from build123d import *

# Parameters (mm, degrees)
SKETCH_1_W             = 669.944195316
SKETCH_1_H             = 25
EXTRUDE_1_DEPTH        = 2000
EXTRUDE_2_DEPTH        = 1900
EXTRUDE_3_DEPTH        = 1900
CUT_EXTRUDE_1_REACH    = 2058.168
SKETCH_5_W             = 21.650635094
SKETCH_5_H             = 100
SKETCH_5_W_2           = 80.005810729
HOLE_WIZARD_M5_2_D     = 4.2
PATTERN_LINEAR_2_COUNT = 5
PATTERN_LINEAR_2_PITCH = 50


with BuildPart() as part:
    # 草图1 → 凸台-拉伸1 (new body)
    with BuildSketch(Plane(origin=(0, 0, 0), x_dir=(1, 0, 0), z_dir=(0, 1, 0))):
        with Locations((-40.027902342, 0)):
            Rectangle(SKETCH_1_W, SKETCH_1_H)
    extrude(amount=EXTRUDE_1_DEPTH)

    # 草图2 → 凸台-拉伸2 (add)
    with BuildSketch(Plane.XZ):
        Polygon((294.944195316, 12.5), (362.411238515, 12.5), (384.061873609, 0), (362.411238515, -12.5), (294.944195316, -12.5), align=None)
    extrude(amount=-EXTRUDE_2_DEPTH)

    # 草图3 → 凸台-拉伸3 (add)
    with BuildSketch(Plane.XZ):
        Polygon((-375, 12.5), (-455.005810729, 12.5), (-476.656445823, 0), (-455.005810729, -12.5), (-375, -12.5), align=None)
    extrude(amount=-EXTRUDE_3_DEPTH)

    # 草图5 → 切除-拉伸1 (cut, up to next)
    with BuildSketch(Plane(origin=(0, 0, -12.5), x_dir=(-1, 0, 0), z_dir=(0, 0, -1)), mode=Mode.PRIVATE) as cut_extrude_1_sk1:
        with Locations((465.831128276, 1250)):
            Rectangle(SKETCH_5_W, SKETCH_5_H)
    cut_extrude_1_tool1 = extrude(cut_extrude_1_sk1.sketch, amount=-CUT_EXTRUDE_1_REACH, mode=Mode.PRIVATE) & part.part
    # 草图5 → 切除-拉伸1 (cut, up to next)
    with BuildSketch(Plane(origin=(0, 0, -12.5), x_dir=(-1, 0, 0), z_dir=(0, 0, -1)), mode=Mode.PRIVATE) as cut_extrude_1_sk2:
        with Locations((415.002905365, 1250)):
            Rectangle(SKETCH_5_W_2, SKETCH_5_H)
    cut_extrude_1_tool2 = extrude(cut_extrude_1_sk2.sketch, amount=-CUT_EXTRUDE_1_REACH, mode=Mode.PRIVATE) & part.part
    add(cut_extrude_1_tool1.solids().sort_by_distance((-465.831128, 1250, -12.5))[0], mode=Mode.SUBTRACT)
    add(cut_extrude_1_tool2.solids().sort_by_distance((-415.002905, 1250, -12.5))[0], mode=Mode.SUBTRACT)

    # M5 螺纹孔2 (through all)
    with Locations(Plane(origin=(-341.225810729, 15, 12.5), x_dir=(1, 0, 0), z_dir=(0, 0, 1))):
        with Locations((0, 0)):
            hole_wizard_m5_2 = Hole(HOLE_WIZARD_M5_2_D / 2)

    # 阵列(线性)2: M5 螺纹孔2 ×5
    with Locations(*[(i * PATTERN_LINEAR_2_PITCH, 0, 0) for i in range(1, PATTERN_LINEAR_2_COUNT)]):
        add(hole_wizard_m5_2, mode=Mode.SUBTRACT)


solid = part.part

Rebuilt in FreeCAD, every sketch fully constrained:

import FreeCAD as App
import Part
import Sketcher

V = App.Vector
Q = App.Units.Quantity


def add_polygon(sketch, points):
    """Adds a closed chain of lines whose ends are joined by coincident constraints."""
    first, n = sketch.GeometryCount, len(points)
    for a, b in zip(points, points[1:] + points[:1]):
        sketch.addGeometry(Part.LineSegment(App.Vector(*a, 0), App.Vector(*b, 0)), False)
    for i in range(n):
        sketch.addConstraint(Sketcher.Constraint("Coincident", first + i, 2, first + (i + 1) % n, 1))

doc = App.newDocument("Part")
body = doc.addObject("PartDesign::Body", "Body")

# Sketch on XZ plane
sketch1 = body.newObject("Sketcher::SketchObject", "Sketch")
sketch1.AttachmentSupport = (doc.getObject("XZ_Plane"), [""])
sketch1.MapMode = "FlatFace"
add_polygon(sketch1, [(-375, -12.5), (-375, 12.5), (294.944195, 12.5), (294.944195, -12.5)])  # lines 0-3
sketch1.addConstraint([
    Sketcher.Constraint("Vertical", 0),
    Sketcher.Constraint("Horizontal", 1),
    Sketcher.Constraint("Vertical", 2),
    Sketcher.Constraint("Horizontal", 3),
    Sketcher.Constraint("DistanceY", 0, 1, 0, 2, 25.0),
    Sketcher.Constraint("DistanceX", 0, 2, -1, 1, 375.0),
    Sketcher.Constraint("DistanceY", -1, 1, 0, 2, 12.5),
    Sketcher.Constraint("DistanceX", 1, 1, 1, 2, 669.944195),
])
pad1 = body.newObject("PartDesign::Pad", "Pad")
pad1.Profile = sketch1
pad1.Length = 2000
pad1.Reversed = True

# Sketch on XZ plane
sketch2 = body.newObject("Sketcher::SketchObject", "Sketch001")
sketch2.AttachmentSupport = (doc.getObject("XZ_Plane"), [""])
sketch2.MapMode = "FlatFace"
add_polygon(sketch2, [(362.411239, 12.5), (294.944195, 12.5), (294.944195, -12.5), (362.411239, -12.5), (384.061874, 0)])  # lines 0-4
sketch2.addConstraint([
    Sketcher.Constraint("Horizontal", 0),
    Sketcher.Constraint("Vertical", 1),
    Sketcher.Constraint("Horizontal", 2),
    Sketcher.Constraint("Symmetric", 2, 2, 4, 2, -1),
    Sketcher.Constraint("PointOnObject", 3, 2, -1),
    Sketcher.Constraint("DistanceY", 1, 2, 1, 1, 25.0),
    Sketcher.Constraint("Angle", 3, Q("30 deg")),
    Sketcher.Constraint("DistanceX", 0, 2, 0, 1, 67.467043),
    Sketcher.Constraint("DistanceX", -1, 1, 2, 2, 362.411239),
])
pad2 = body.newObject("PartDesign::Pad", "Pad001")
pad2.Profile = sketch2
pad2.Length = 1900
pad2.Reversed = True

# Sketch on XZ plane
sketch3 = body.newObject("Sketcher::SketchObject", "Sketch002")
sketch3.AttachmentSupport = (doc.getObject("XZ_Plane"), [""])
sketch3.MapMode = "FlatFace"
add_polygon(sketch3, [(-375, 12.5), (-455.005811, 12.5), (-476.656446, 0), (-455.005811, -12.5), (-375, -12.5)])  # lines 0-4
sketch3.addConstraint([
    Sketcher.Constraint("Horizontal", 0),
    Sketcher.Constraint("Horizontal", 3),
    Sketcher.Constraint("Vertical", 4),
    Sketcher.Constraint("Symmetric", 0, 2, 2, 2, -1),
    Sketcher.Constraint("PointOnObject", 1, 2, -1),
    Sketcher.Constraint("DistanceY", 4, 1, 4, 2, 25.0),
    Sketcher.Constraint("Angle", 1, Q("-150 deg")),
    Sketcher.Constraint("DistanceX", 3, 2, -1, 1, 375.0),
    Sketcher.Constraint("DistanceX", 0, 2, 0, 1, 80.005811),
])
pad3 = body.newObject("PartDesign::Pad", "Pad002")
pad3.Profile = sketch3
pad3.Length = 1900
pad3.Reversed = True

# Sketch on XY plane
sketch4 = body.newObject("Sketcher::SketchObject", "Sketch003")
sketch4.AttachmentSupport = (doc.getObject("XY_Plane"), [""])
sketch4.MapMode = "FlatFace"
sketch4.AttachmentOffset = App.Placement(V(0, 0, -12.5), App.Rotation())
add_polygon(sketch4, [(-455.005811, 1300), (-455.005811, 1200), (-476.656446, 1200), (-476.656446, 1300)])  # lines 0-3
sketch4.addConstraint([
    Sketcher.Constraint("Vertical", 0),
    Sketcher.Constraint("Horizontal", 1),
    Sketcher.Constraint("Vertical", 2),
    Sketcher.Constraint("Horizontal", 3),
    Sketcher.Constraint("DistanceY", 0, 2, 0, 1, 100.0),
    Sketcher.Constraint("DistanceY", -1, 1, 0, 2, 1200.0),
    Sketcher.Constraint("DistanceX", 1, 2, 1, 1, 21.650635),
    Sketcher.Constraint("DistanceX", 0, 2, -1, 1, 455.005811),
])
pocket1 = body.newObject("PartDesign::Pocket", "Pocket")
pocket1.Profile = sketch4
pocket1.Length = 25
pocket1.Reversed = True

# Sketch on XY plane
sketch5 = body.newObject("Sketcher::SketchObject", "Sketch004")
sketch5.AttachmentSupport = (doc.getObject("XY_Plane"), [""])
sketch5.MapMode = "FlatFace"
sketch5.AttachmentOffset = App.Placement(V(0, 0, -12.5), App.Rotation())
add_polygon(sketch5, [(-375, 1300), (-375, 1200), (-455.005811, 1200), (-455.005811, 1300)])  # lines 0-3
sketch5.addConstraint([
    Sketcher.Constraint("Vertical", 0),
    Sketcher.Constraint("Horizontal", 1),
    Sketcher.Constraint("Vertical", 2),
    Sketcher.Constraint("Horizontal", 3),
    Sketcher.Constraint("DistanceY", 0, 2, 0, 1, 100.0),
    Sketcher.Constraint("DistanceX", 0, 2, -1, 1, 375.0),
    Sketcher.Constraint("DistanceY", -1, 1, 0, 2, 1200.0),
    Sketcher.Constraint("DistanceX", 1, 2, 1, 1, 80.005811),
])
pocket2 = body.newObject("PartDesign::Pocket", "Pocket001")
pocket2.Profile = sketch5
pocket2.Type = "UpToFirst"
pocket2.Reversed = True

# Sketch on XY plane
sketch6 = body.newObject("Sketcher::SketchObject", "Sketch005")
sketch6.AttachmentSupport = (doc.getObject("XY_Plane"), [""])
sketch6.MapMode = "FlatFace"
sketch6.AttachmentOffset = App.Placement(V(0, 0, 12.5), App.Rotation())
sketch6.addGeometry(Part.Circle(V(-341.225811, 15, 0), V(0, 0, 1), 2.1), False)
sketch6.addConstraint([
    Sketcher.Constraint("Diameter", 0, 4.2),
    Sketcher.Constraint("DistanceY", -1, 1, 0, 3, 15.0),
    Sketcher.Constraint("DistanceX", 0, 3, -1, 1, 341.225811),
])
doc.recompute()
hole = body.newObject("PartDesign::Hole", "Hole")
hole.Profile = sketch6
hole.ThreadType = "None"
hole.Diameter = 4.2
hole.DepthType = "ThroughAll"
doc.recompute()

linearpattern = body.newObject("PartDesign::LinearPattern", "LinearPattern")
linearpattern.Originals = [hole]
linearpattern.Direction = (doc.getObject("X_Axis"), [""])
linearpattern.Mode = "offset"
linearpattern.Offset = 50
linearpattern.Occurrences = 5
body.Tip = linearpattern

doc.recompute()
